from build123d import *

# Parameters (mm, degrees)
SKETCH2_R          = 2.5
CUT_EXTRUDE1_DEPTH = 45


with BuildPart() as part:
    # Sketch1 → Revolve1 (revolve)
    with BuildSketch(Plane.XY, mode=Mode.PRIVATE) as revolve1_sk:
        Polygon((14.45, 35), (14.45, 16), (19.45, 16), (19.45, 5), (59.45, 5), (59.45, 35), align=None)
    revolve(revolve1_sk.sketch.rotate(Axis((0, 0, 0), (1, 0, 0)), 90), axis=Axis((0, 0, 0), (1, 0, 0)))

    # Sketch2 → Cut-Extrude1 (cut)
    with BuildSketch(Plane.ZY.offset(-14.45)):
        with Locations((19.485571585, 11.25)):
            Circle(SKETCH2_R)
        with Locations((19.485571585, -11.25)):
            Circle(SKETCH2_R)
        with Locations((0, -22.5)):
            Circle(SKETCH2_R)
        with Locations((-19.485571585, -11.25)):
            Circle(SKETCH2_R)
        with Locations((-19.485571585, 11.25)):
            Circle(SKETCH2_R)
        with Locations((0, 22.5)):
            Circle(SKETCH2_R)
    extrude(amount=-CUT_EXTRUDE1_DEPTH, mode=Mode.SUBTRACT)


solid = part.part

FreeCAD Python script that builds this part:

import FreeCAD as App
import Part
import Sketcher
from FreeCAD import Vector


def add_polygon(sketch, points):
    """Adds a closed chain of lines whose ends are joined by coincident constraints."""
    first, n = sketch.GeometryCount, len(points)
    for a, b in zip(points, points[1:] + points[:1]):
        sketch.addGeometry(Part.LineSegment(App.Vector(*a, 0), App.Vector(*b, 0)), False)
    for i in range(n):
        sketch.addConstraint(Sketcher.Constraint("Coincident", first + i, 2, first + (i + 1) % n, 1))

doc = App.newDocument("Part")
body = doc.addObject("PartDesign::Body", "Body")

# Sketch on XY plane
sketch1 = body.newObject("Sketcher::SketchObject", "Sketch")
sketch1.AttachmentSupport = (doc.getObject("XY_Plane"), [""])
sketch1.MapMode = "FlatFace"
add_polygon(sketch1, [(14, 35), (14, 16), (19, 16), (19, 5), (59, 5), (59, 35)])  # lines 0-5
sketch1.addConstraint([
    Sketcher.Constraint("Vertical", 0),
    Sketcher.Constraint("Horizontal", 1),
    Sketcher.Constraint("Vertical", 2),
    Sketcher.Constraint("Horizontal", 3),
    Sketcher.Constraint("Vertical", 4),
    Sketcher.Constraint("Horizontal", 5),
    Sketcher.Constraint("DistanceX", 1, 1, 1, 2, 5.0),
    Sketcher.Constraint("DistanceX", 3, 1, 3, 2, 40.0),
    Sketcher.Constraint("DistanceY", 0, 2, 0, 1, 19.0),
    Sketcher.Constraint("DistanceY", 2, 2, 2, 1, 11.0),
    Sketcher.Constraint("DistanceY", -1, 1, 0, 2, 16.0),
    Sketcher.Constraint("DistanceX", -1, 1, 0, 2, 14.45),
])
revolution = body.newObject("PartDesign::Revolution", "Revolution")
revolution.Profile = sketch1
revolution.ReferenceAxis = (sketch1, ["H_Axis"])
revolution.Angle = 360

# Sketch on YZ plane
sketch2 = body.newObject("Sketcher::SketchObject", "Sketch001")
sketch2.AttachmentSupport = (doc.getObject("YZ_Plane"), [""])
sketch2.MapMode = "FlatFace"
sketch2.AttachmentOffset = App.Placement(Vector(0, 0, 14.45), App.Rotation())
sketch2.addGeometry([
    Part.Circle(Vector(11.2, 19.5, 0), Vector(0, 0, 1), 2.5),  # 0
    Part.Circle(Vector(-11.2, 19.5, 0), Vector(0, 0, 1), 2.5),  # 1
    Part.Circle(Vector(-22.5, 0, 0), Vector(0, 0, 1), 2.5),  # 2
    Part.Circle(Vector(-11.2, -19.5, 0), Vector(0, 0, 1), 2.5),  # 3
    Part.Circle(Vector(11.2, -19.5, 0), Vector(0, 0, 1), 2.5),  # 4
    Part.Circle(Vector(22.5, 0, 0), Vector(0, 0, 1), 2.5),  # 5
], False)
sketch2.addConstraint([
    Sketcher.Constraint("Equal", 0, 1),
    Sketcher.Constraint("Equal", 1, 2),
    Sketcher.Constraint("Equal", 2, 3),
    Sketcher.Constraint("Equal", 3, 4),
    Sketcher.Constraint("Equal", 4, 5),
    Sketcher.Constraint("Symmetric", 0, 3, 3, 3, -1, 1),
    Sketcher.Constraint("Symmetric", 1, 3, 4, 3, -1, 1),
    Sketcher.Constraint("Symmetric", 2, 3, 5, 3, -1, 1),
    Sketcher.Constraint("Symmetric", 0, 3, 1, 3, -2),
    Sketcher.Constraint("PointOnObject", 2, 3, -1),
    Sketcher.Constraint("Diameter", 0, 5.0),
    Sketcher.Constraint("DistanceX", 2, 3, 5, 3, 45.0),
    Sketcher.Constraint("DistanceX", 1, 3, 0, 3, 22.5),
    Sketcher.Constraint("DistanceY", -1, 1, 0, 3, 19.485572),
])
pocket1 = body.newObject("PartDesign::Pocket", "Pocket")
pocket1.Profile = sketch2
pocket1.Length = 45
pocket1.Reversed = True

doc.recompute()
